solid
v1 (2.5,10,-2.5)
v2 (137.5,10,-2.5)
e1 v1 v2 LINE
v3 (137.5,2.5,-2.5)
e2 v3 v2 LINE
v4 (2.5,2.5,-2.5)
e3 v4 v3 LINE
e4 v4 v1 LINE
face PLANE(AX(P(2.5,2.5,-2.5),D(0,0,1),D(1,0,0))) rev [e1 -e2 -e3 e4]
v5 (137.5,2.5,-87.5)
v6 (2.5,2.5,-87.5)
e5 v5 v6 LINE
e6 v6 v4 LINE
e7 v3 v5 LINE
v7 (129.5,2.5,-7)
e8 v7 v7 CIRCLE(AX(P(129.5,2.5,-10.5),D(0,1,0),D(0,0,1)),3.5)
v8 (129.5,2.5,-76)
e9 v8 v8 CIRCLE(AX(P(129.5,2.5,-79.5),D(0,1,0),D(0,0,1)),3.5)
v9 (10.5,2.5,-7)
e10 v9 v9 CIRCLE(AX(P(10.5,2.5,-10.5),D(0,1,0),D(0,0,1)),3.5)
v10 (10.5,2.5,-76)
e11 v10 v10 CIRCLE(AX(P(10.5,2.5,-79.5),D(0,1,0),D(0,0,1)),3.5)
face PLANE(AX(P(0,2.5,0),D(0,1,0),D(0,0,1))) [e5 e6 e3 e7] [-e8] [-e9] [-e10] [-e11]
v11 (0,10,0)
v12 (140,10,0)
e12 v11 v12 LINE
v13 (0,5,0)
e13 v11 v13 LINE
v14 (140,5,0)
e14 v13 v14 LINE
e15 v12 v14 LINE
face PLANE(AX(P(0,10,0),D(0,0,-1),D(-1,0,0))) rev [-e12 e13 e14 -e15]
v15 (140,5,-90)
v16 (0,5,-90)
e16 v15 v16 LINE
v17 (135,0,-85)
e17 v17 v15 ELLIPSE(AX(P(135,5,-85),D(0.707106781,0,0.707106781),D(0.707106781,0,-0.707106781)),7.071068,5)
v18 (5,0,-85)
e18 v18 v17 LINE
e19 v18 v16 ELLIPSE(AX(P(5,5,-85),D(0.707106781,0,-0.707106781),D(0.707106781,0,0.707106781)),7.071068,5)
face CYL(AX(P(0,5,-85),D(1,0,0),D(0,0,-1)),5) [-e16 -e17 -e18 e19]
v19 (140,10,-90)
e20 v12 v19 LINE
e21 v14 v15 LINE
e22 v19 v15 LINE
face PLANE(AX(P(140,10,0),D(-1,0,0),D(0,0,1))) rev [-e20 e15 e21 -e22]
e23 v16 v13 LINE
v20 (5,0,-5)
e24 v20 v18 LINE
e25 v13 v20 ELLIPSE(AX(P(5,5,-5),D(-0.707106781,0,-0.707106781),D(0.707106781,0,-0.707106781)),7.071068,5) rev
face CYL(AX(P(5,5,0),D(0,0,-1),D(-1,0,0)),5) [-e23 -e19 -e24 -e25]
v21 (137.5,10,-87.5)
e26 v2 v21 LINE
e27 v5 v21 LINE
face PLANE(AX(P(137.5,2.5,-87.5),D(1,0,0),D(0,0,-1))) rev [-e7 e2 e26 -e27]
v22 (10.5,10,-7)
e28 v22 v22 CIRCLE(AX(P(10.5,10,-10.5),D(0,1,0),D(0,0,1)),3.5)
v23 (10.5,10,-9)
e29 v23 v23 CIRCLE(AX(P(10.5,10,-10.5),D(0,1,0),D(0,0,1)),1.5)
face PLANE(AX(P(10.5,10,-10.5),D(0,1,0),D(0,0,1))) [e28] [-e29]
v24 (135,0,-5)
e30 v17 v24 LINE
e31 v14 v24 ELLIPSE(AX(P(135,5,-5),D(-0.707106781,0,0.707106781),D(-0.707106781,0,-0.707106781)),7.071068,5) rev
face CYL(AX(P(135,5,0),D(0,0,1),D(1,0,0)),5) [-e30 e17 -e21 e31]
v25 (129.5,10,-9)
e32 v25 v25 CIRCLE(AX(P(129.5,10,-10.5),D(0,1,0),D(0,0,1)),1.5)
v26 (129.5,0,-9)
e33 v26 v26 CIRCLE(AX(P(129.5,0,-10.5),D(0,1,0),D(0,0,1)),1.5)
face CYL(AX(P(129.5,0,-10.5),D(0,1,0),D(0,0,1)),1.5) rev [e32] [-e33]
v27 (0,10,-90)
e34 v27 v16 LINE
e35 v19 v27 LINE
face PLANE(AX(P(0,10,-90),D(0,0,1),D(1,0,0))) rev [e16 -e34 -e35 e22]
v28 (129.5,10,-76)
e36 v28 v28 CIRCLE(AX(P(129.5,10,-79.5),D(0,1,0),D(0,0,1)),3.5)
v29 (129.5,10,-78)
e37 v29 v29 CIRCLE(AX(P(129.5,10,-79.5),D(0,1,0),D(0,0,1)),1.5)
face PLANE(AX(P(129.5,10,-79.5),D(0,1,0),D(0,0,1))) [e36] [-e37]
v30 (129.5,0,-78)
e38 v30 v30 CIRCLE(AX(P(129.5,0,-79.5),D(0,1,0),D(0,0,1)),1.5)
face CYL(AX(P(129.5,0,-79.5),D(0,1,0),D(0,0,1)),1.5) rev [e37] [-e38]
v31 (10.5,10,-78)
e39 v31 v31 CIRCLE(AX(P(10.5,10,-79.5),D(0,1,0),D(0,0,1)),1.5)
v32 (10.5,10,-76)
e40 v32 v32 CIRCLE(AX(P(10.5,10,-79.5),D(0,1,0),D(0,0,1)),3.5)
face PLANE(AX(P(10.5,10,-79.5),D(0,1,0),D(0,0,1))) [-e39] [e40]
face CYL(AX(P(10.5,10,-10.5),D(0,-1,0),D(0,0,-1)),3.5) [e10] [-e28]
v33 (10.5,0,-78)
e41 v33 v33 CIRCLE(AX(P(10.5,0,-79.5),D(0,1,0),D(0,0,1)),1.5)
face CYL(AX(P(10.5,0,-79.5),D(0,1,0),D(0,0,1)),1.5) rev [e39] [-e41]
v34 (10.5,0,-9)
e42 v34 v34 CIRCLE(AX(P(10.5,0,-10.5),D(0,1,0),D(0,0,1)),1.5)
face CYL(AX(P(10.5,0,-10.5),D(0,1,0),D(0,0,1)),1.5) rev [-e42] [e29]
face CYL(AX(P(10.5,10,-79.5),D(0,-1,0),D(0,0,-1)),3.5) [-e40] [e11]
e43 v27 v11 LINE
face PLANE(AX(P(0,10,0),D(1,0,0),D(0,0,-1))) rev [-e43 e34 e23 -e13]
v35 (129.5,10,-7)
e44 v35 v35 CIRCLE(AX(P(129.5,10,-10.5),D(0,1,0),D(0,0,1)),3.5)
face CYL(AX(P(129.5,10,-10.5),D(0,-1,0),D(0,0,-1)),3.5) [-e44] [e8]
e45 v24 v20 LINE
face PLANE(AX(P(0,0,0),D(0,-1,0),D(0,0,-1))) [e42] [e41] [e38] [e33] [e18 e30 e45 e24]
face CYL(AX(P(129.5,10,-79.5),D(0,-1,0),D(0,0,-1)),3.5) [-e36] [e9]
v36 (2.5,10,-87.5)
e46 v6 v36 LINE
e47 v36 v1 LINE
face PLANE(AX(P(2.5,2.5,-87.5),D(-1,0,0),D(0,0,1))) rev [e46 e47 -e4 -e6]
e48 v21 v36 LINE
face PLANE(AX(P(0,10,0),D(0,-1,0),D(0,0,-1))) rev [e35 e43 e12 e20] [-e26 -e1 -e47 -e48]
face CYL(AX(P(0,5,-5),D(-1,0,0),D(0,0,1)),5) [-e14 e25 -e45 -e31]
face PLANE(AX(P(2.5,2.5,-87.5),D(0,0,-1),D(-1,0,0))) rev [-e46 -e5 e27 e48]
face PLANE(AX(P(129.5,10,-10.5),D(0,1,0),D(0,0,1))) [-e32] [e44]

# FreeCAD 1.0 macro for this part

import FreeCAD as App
import Part
import Sketcher
from FreeCAD import Vector


def edges_at(feature, points):
    """Names of the edges that pass closest to the given points."""
    edges = feature.Shape.Edges
    near = lambda p: min(range(len(edges)), key=lambda i: edges[i].distToShape(Part.Vertex(*p))[0])
    return sorted({f"Edge{near(p) + 1}" for p in points})

doc = App.newDocument("Part")
params = doc.addObject("Spreadsheet::Sheet", "Params")
for row, (alias, value) in enumerate([
    ("sketch1_width", "140 mm"),
    ("sketch1_height", "90 mm"),
    ("pad1_length", "10 mm"),
    ("sketch2_width", "135 mm"),
    ("sketch2_height", "85 mm"),
    ("pocket1_length", "7.5 mm"),
    ("sketch3_diameter", "7 mm"),
    ("pad2_length", "7.5 mm"),
    ("sketch4_diameter", "3 mm"),
    ("fillet_radius", "5 mm"),
], start=1):
    params.set(f"A{row}", alias)
    params.set(f"B{row}", "=" + value)
    params.setAlias(f"B{row}", alias)

body = doc.addObject("PartDesign::Body", "Body")

# Sketch on XZ plane
sketch1 = body.newObject("Sketcher::SketchObject", "Sketch")
sketch1.AttachmentSupport = (doc.getObject("XZ_Plane"), [""])
sketch1.MapMode = "FlatFace"
sketch1.addGeometry([
    Part.LineSegment(Vector(0, -90, 0), Vector(0, 0, 0)),
    Part.LineSegment(Vector(0, 0, 0), Vector(140, 0, 0)),
    Part.LineSegment(Vector(140, 0, 0), Vector(140, -90, 0)),
    Part.LineSegment(Vector(140, -90, 0), Vector(0, -90, 0)),
], False)
sketch1.addConstraint([
    Sketcher.Constraint("Coincident", 0, 2, 1, 1),
    Sketcher.Constraint("Coincident", 1, 2, 2, 1),
    Sketcher.Constraint("Coincident", 2, 2, 3, 1),
    Sketcher.Constraint("Coincident", 3, 2, 0, 1),
    Sketcher.Constraint("Vertical", 0),
    Sketcher.Constraint("Horizontal", 1),
    Sketcher.Constraint("Vertical", 2),
    Sketcher.Constraint("Horizontal", 3),
    Sketcher.Constraint("Coincident", 0, 2, -1, 1),
    Sketcher.Constraint("DistanceX", 1, 1, 1, 2, 140.0),
    Sketcher.Constraint("DistanceY", 0, 1, 0, 2, 90.0),
])
sketch1.setExpression("Constraints[9]", "Params.sketch1_width")
sketch1.setExpression("Constraints[10]", "Params.sketch1_height")
pad1 = body.newObject("PartDesign::Pad", "Pad")
pad1.Profile = sketch1
pad1.setExpression("Length", "Params.pad1_length")
pad1.Reversed = True

# Sketch on XZ plane
sketch2 = body.newObject("Sketcher::SketchObject", "Sketch001")
sketch2.AttachmentSupport = (doc.getObject("XZ_Plane"), [""])
sketch2.MapMode = "FlatFace"
sketch2.AttachmentOffset = App.Placement(Vector(0, 0, -10), App.Rotation())
sketch2.addGeometry([
    Part.LineSegment(Vector(2.5, -87.5, 0), Vector(2.5, -2.5, 0)),
    Part.LineSegment(Vector(2.5, -2.5, 0), Vector(137.5, -2.5, 0)),
    Part.LineSegment(Vector(137.5, -2.5, 0), Vector(137.5, -87.5, 0)),
    Part.LineSegment(Vector(137.5, -87.5, 0), Vector(2.5, -87.5, 0)),
], False)
sketch2.addConstraint([
    Sketcher.Constraint("Coincident", 0, 2, 1, 1),
    Sketcher.Constraint("Coincident", 1, 2, 2, 1),
    Sketcher.Constraint("Coincident", 2, 2, 3, 1),
    Sketcher.Constraint("Coincident", 3, 2, 0, 1),
    Sketcher.Constraint("Vertical", 0),
    Sketcher.Constraint("Horizontal", 1),
    Sketcher.Constraint("Vertical", 2),
    Sketcher.Constraint("Horizontal", 3),
    Sketcher.Constraint("DistanceX", 1, 1, 1, 2, 135.0),
    Sketcher.Constraint("DistanceY", 0, 1, 0, 2, 85.0),
    Sketcher.Constraint("DistanceX", -1, 1, 0, 2, 2.5),
    Sketcher.Constraint("DistanceY", 0, 2, -1, 1, 2.5),
])
sketch2.setExpression("Constraints[8]", "Params.sketch2_width")
sketch2.setExpression("Constraints[9]", "Params.sketch2_height")
pocket1 = body.newObject("PartDesign::Pocket", "Pocket")
pocket1.Profile = sketch2
pocket1.setExpression("Length", "Params.pocket1_length")
pocket1.Reversed = True

# Sketch on XZ plane
sketch3 = body.newObject("Sketcher::SketchObject", "Sketch002")
sketch3.AttachmentSupport = (doc.getObject("XZ_Plane"), [""])
sketch3.MapMode = "FlatFace"
sketch3.AttachmentOffset = App.Placement(Vector(0, 0, -2.5), App.Rotation())
sketch3.addGeometry([
    Part.Circle(Vector(10.5, -79.5, 0), Vector(0, 0, 1), 3.5),
    Part.Circle(Vector(10.5, -10.5, 0), Vector(0, 0, 1), 3.5),
    Part.Circle(Vector(129.5, -10.5, 0), Vector(0, 0, 1), 3.5),
    Part.Circle(Vector(129.5, -79.5, 0), Vector(0, 0, 1), 3.5),
], False)
sketch3.addConstraint([
    Sketcher.Constraint("Equal", 0, 1),
    Sketcher.Constraint("Equal", 1, 2),
    Sketcher.Constraint("Equal", 2, 3),
    Sketcher.Constraint("Horizontal", 1, 3, 2, 3),
    Sketcher.Constraint("Horizontal", 0, 3, 3, 3),
    Sketcher.Constraint("Vertical", 0, 3, 1, 3),
    Sketcher.Constraint("Vertical", 2, 3, 3, 3),
    Sketcher.Constraint("Diameter", 0, 7.0),
    Sketcher.Constraint("DistanceY", 0, 3, 1, 3, 69.0),
    Sketcher.Constraint("DistanceX", 1, 3, 2, 3, 119.0),
    Sketcher.Constraint("DistanceX", -1, 1, 0, 3, 10.5),
    Sketcher.Constraint("DistanceY", 0, 3, -1, 1, 79.5),
])
sketch3.setExpression("Constraints[7]", "Params.sketch3_diameter")
pad2 = body.newObject("PartDesign::Pad", "Pad001")
pad2.Profile = sketch3
pad2.setExpression("Length", "Params.pad2_length")
pad2.Reversed = True

# Sketch on XZ plane
sketch4 = body.newObject("Sketcher::SketchObject", "Sketch003")
sketch4.AttachmentSupport = (doc.getObject("XZ_Plane"), [""])
sketch4.MapMode = "FlatFace"
sketch4.AttachmentOffset = App.Placement(Vector(0, 0, -10), App.Rotation())
sketch4.addGeometry([
    Part.Circle(Vector(10.5, -10.5, 0), Vector(0, 0, 1), 1.5),
    Part.Circle(Vector(10.5, -79.5, 0), Vector(0, 0, 1), 1.5),
    Part.Circle(Vector(129.5, -79.5, 0), Vector(0, 0, 1), 1.5),
    Part.Circle(Vector(129.5, -10.5, 0), Vector(0, 0, 1), 1.5),
], False)
sketch4.addConstraint([
    Sketcher.Constraint("Equal", 0, 1),
    Sketcher.Constraint("Equal", 1, 2),
    Sketcher.Constraint("Equal", 2, 3),
    Sketcher.Constraint("Horizontal", 1, 3, 2, 3),
    Sketcher.Constraint("Horizontal", 0, 3, 3, 3),
    Sketcher.Constraint("Vertical", 0, 3, 1, 3),
    Sketcher.Constraint("Vertical", 2, 3, 3, 3),
    Sketcher.Constraint("Diameter", 0, 3.0),
    Sketcher.Constraint("DistanceY", 1, 3, 0, 3, 69.0),
    Sketcher.Constraint("DistanceX", 1, 3, 2, 3, 119.0),
    Sketcher.Constraint("DistanceX", -1, 1, 0, 3, 10.5),
    Sketcher.Constraint("DistanceY", 0, 3, -1, 1, 10.5),
])
sketch4.setExpression("Constraints[7]", "Params.sketch4_diameter")
pocket2 = body.newObject("PartDesign::Pocket", "Pocket001")
pocket2.Profile = sketch4
pocket2.Type = "ThroughAll"
pocket2.Reversed = True
doc.recompute()

fillet = body.newObject("PartDesign::Fillet", "Fillet")
fillet.Base = (pocket2, edges_at(pocket2, [
    (70, 0, -90),
    (140, 0, -45),
    (70, 0, 0),
    (0, 0, -45),
]))
fillet.setExpression("Radius", "Params.fillet_radius")

doc.recompute()
